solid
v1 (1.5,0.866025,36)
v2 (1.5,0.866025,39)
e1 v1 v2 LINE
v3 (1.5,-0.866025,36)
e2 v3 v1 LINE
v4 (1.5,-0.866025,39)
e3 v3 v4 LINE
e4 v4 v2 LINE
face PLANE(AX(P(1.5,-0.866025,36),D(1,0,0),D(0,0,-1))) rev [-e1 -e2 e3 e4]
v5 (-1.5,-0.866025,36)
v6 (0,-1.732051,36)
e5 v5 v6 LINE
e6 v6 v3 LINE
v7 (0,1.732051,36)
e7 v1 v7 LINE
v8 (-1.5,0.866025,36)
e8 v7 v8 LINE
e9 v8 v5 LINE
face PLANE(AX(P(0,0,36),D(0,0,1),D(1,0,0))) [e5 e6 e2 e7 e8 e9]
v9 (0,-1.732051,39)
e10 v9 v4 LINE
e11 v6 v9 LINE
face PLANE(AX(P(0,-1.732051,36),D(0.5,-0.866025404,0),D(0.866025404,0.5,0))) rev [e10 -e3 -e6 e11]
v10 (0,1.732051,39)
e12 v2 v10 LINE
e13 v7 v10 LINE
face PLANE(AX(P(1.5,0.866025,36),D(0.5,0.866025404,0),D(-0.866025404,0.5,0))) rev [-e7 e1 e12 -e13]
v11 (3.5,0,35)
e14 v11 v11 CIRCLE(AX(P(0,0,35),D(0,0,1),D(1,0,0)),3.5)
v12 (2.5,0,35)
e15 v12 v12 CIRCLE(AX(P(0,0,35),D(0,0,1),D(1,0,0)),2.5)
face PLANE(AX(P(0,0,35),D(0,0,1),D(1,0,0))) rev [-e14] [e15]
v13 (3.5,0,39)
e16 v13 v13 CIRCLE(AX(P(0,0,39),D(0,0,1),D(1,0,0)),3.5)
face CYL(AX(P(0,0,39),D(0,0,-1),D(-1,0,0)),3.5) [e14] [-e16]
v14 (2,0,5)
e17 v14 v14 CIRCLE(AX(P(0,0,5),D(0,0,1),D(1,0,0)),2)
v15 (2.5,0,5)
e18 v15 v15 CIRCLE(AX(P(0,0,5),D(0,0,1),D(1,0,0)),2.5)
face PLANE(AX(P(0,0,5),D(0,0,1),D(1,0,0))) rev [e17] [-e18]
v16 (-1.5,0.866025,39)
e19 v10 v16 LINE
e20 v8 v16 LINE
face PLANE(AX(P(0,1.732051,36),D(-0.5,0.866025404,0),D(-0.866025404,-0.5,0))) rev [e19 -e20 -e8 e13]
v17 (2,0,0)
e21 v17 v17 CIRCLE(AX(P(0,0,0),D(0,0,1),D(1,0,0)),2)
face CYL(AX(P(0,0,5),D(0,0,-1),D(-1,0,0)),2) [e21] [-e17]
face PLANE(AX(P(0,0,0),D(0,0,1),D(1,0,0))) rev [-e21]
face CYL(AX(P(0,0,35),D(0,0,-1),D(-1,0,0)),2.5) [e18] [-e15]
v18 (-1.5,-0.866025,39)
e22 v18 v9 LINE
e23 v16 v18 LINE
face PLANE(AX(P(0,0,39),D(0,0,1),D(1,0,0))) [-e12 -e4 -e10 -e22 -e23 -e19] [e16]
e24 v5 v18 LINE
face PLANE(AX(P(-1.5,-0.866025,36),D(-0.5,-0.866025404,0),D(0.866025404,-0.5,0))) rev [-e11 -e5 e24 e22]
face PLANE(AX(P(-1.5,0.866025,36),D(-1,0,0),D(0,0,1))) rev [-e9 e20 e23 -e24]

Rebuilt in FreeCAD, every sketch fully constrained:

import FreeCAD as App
import Part
import Sketcher
from FreeCAD import Vector
Q = App.Units.Quantity

doc = App.newDocument("Part")
body = doc.addObject("PartDesign::Body", "Body")

# Sketch on XY plane
sketch1 = body.newObject("Sketcher::SketchObject", "Sketch")
sketch1.AttachmentSupport = (doc.getObject("XY_Plane"), [""])
sketch1.MapMode = "FlatFace"
sketch1.addGeometry(Part.Circle(Vector(0, 0, 0), Vector(0, 0, 1), 2), False)
sketch1.addConstraint(Sketcher.Constraint("Coincident", 0, 3, -1, 1))
sketch1.addConstraint(Sketcher.Constraint("Diameter", 0, Q("4 mm")))
pad1 = body.newObject("PartDesign::Pad", "Pad")
pad1.Profile = sketch1
pad1.Length = 5

# Sketch on XY plane
sketch2 = body.newObject("Sketcher::SketchObject", "Sketch001")
sketch2.AttachmentSupport = (doc.getObject("XY_Plane"), [""])
sketch2.MapMode = "FlatFace"
sketch2.AttachmentOffset = App.Placement(Vector(0, 0, 5), App.Rotation())
sketch2.addGeometry(Part.Circle(Vector(0, 0, 0), Vector(0, 0, 1), 2.5), False)
sketch2.addConstraint(Sketcher.Constraint("Coincident", 0, 3, -1, 1))
sketch2.addConstraint(Sketcher.Constraint("Diameter", 0, Q("5 mm")))
pad2 = body.newObject("PartDesign::Pad", "Pad001")
pad2.Profile = sketch2
pad2.Length = 30

# Sketch on XY plane
sketch3 = body.newObject("Sketcher::SketchObject", "Sketch002")
sketch3.AttachmentSupport = (doc.getObject("XY_Plane"), [""])
sketch3.MapMode = "FlatFace"
sketch3.AttachmentOffset = App.Placement(Vector(0, 0, 35), App.Rotation())
sketch3.addGeometry(Part.Circle(Vector(0, 0, 0), Vector(0, 0, 1), 3.5), False)
sketch3.addConstraint(Sketcher.Constraint("Coincident", 0, 3, -1, 1))
sketch3.addConstraint(Sketcher.Constraint("Diameter", 0, Q("7 mm")))
pad3 = body.newObject("PartDesign::Pad", "Pad002")
pad3.Profile = sketch3
pad3.Length = 4

# Sketch on XY plane
sketch4 = body.newObject("Sketcher::SketchObject", "Sketch003")
sketch4.AttachmentSupport = (doc.getObject("XY_Plane"), [""])
sketch4.MapMode = "FlatFace"
sketch4.AttachmentOffset = App.Placement(Vector(0, 0, 39), App.Rotation())
sketch4.addGeometry(Part.LineSegment(Vector(1.5, 0.9, 0), Vector(0, 1.7, 0)), False)
sketch4.addGeometry(Part.LineSegment(Vector(0, 1.7, 0), Vector(-1.5, 0.9, 0)), False)
sketch4.addGeometry(Part.LineSegment(Vector(-1.5, 0.9, 0), Vector(-1.5, -0.9, 0)), False)
sketch4.addGeometry(Part.LineSegment(Vector(-1.5, -0.9, 0), Vector(0, -1.7, 0)), False)
sketch4.addGeometry(Part.LineSegment(Vector(0, -1.7, 0), Vector(1.5, -0.9, 0)), False)
sketch4.addGeometry(Part.LineSegment(Vector(1.5, -0.9, 0), Vector(1.5, 0.9, 0)), False)
sketch4.addConstraint(Sketcher.Constraint("Coincident", 0, 2, 1, 1))
sketch4.addConstraint(Sketcher.Constraint("Coincident", 1, 2, 2, 1))
sketch4.addConstraint(Sketcher.Constraint("Coincident", 2, 2, 3, 1))
sketch4.addConstraint(Sketcher.Constraint("Coincident", 3, 2, 4, 1))
sketch4.addConstraint(Sketcher.Constraint("Coincident", 4, 2, 5, 1))
sketch4.addConstraint(Sketcher.Constraint("Coincident", 5, 2, 0, 1))
sketch4.addConstraint(Sketcher.Constraint("Vertical", 2))
sketch4.addConstraint(Sketcher.Constraint("Vertical", 5))
sketch4.addConstraint(Sketcher.Constraint("Symmetric", 0, 2, 3, 2, -1, 1))
sketch4.addConstraint(Sketcher.Constraint("Symmetric", 1, 2, 4, 2, -1, 1))
sketch4.addConstraint(Sketcher.Constraint("PointOnObject", 0, 2, -2))
sketch4.addConstraint(Sketcher.Constraint("Parallel", 0, 3))
sketch4.addConstraint(Sketcher.Constraint("Horizontal", 2, 2, 4, 2))
sketch4.addConstraint(Sketcher.Constraint("Angle", 0, Q("150 deg")))
sketch4.addConstraint(Sketcher.Constraint("DistanceX", 2, 2, 4, 2, Q("3 mm")))
sketch4.addConstraint(Sketcher.Constraint("DistanceY", 2, 2, 2, 1, Q("1.732051 mm")))
pocket1 = body.newObject("PartDesign::Pocket", "Pocket")
pocket1.Profile = sketch4
pocket1.Length = 3

doc.recompute()
